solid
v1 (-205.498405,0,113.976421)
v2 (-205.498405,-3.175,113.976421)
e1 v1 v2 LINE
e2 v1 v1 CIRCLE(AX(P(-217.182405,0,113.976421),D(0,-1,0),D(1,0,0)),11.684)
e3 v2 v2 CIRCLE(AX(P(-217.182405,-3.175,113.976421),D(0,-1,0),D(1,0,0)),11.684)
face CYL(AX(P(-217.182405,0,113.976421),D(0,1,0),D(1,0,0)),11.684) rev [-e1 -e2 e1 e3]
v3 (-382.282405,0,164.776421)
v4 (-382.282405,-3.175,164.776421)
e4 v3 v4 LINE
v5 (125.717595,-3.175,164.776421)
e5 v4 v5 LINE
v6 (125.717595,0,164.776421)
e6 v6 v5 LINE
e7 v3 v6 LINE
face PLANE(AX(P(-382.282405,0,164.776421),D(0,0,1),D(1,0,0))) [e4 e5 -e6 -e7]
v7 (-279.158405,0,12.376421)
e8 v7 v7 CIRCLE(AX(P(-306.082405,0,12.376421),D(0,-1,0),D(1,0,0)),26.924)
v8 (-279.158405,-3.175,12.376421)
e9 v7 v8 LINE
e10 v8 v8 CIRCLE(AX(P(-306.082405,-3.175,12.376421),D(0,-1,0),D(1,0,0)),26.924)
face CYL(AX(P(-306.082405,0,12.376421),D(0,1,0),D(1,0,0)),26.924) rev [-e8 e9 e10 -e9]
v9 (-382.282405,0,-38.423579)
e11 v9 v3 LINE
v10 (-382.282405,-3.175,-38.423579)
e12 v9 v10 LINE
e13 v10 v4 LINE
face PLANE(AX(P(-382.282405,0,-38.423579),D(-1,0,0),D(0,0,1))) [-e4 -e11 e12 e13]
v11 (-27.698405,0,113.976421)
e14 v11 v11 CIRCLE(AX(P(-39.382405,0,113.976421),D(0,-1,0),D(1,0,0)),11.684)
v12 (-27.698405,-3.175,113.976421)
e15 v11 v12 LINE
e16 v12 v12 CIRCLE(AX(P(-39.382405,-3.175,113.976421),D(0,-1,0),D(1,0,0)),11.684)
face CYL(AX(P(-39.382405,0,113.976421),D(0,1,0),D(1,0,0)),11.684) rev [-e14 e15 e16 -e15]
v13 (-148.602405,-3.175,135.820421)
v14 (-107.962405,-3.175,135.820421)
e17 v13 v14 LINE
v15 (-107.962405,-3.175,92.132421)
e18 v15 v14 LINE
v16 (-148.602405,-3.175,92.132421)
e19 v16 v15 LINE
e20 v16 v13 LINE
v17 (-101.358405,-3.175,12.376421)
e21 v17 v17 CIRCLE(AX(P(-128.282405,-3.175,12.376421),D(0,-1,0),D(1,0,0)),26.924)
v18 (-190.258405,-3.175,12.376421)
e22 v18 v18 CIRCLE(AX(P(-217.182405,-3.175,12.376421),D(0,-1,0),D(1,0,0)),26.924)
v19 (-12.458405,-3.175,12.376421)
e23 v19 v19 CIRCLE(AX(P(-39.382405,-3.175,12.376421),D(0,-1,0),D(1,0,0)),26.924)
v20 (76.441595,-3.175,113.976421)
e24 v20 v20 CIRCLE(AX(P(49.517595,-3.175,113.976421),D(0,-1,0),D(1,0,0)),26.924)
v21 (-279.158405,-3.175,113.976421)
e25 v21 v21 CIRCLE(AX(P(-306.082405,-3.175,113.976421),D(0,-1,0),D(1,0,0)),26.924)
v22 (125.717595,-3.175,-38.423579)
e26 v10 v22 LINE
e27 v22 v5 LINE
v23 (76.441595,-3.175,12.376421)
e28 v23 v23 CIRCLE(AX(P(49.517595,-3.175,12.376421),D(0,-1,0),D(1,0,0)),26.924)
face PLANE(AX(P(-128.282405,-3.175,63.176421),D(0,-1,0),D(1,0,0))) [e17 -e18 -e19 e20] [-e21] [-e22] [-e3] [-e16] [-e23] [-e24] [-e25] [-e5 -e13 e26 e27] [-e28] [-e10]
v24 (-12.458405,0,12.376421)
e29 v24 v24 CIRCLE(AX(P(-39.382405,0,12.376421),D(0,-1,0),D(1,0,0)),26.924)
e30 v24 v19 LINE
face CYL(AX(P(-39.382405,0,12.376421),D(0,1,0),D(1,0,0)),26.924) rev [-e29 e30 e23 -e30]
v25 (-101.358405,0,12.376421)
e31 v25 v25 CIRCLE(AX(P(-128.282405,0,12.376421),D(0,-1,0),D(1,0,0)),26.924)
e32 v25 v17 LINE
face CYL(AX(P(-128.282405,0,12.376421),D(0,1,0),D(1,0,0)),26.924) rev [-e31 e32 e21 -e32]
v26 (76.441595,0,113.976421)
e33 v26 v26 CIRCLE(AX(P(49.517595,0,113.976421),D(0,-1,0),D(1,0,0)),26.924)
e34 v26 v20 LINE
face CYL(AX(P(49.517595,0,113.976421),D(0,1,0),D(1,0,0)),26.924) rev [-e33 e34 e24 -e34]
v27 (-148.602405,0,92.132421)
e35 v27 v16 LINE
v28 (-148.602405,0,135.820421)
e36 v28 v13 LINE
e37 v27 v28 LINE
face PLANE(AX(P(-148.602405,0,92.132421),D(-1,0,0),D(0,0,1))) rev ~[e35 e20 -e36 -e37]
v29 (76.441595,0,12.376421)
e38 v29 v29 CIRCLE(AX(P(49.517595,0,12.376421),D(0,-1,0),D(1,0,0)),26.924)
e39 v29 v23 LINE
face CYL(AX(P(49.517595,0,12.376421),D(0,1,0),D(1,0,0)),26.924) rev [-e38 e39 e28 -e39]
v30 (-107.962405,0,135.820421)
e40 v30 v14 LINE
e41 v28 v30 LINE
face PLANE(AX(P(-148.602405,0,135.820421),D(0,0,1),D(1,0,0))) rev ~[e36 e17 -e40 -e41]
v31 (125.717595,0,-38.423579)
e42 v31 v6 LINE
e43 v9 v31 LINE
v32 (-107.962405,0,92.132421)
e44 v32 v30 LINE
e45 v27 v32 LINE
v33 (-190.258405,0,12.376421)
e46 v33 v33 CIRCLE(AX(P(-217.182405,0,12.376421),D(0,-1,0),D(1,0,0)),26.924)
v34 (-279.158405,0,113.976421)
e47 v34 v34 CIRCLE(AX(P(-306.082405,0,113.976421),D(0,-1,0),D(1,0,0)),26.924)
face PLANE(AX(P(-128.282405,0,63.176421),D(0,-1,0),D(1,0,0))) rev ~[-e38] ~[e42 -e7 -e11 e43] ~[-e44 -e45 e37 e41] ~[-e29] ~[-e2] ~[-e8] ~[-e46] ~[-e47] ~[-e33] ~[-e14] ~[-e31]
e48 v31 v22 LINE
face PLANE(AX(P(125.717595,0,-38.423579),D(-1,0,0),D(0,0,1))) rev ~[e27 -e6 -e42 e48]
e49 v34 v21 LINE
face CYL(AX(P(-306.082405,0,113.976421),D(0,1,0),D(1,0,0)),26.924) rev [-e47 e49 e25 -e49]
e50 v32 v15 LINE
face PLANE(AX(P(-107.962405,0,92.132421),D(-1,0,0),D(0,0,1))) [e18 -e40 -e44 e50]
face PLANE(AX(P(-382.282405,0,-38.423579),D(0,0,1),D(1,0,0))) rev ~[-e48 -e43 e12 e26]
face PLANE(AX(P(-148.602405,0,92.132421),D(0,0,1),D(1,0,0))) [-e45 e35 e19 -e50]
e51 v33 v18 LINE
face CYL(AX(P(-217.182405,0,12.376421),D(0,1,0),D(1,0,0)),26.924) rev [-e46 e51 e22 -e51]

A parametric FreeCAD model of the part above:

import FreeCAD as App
import Part
import Sketcher
Q = App.Units.Quantity


def add_polygon(sketch, points):
    """Adds a closed chain of lines whose ends are joined by coincident constraints."""
    first, n = sketch.GeometryCount, len(points)
    for a, b in zip(points, points[1:] + points[:1]):
        sketch.addGeometry(Part.LineSegment(App.Vector(*a, 0), App.Vector(*b, 0)), False)
    for i in range(n):
        sketch.addConstraint(Sketcher.Constraint("Coincident", first + i, 2, first + (i + 1) % n, 1))

doc = App.newDocument("Part")
params = doc.addObject("Spreadsheet::Sheet", "Params")
for row, (alias, value) in enumerate([
    ("sketch1_diameter", "2.12 in"),
    ("sketch1_diameter2", "0.92 in"),
    ("sketch1_width", "20 in"),
    ("sketch1_height", "8 in"),
    ("sketch1_width2", "1.6 in"),
    ("pad1_length", "0.125 in"),
], start=1):
    params.set(f"A{row}", alias)
    params.set(f"B{row}", "=" + value)
    params.setAlias(f"B{row}", alias)

body = doc.addObject("PartDesign::Body", "Body")

sketch1 = body.newObject("Sketcher::SketchObject", "Sketch")
sketch1.AttachmentSupport = (doc.getObject("XZ_Plane"), [""])
sketch1.MapMode = "FlatFace"
add_polygon(sketch1, [(-382.282405, 164.776421), (-382.282405, -38.423579), (125.717595, -38.423579), (125.717595, 164.776421)])
sketch1.addGeometry(Part.Circle(App.Vector(-306.082405, 12.376421, 0), App.Vector(0, 0, 1), 26.924), False)
sketch1.addGeometry(Part.Circle(App.Vector(-217.182405, 12.376421, 0), App.Vector(0, 0, 1), 26.924), False)
sketch1.addGeometry(Part.Circle(App.Vector(-128.282405, 12.376421, 0), App.Vector(0, 0, 1), 26.924), False)
sketch1.addGeometry(Part.Circle(App.Vector(-39.382405, 12.376421, 0), App.Vector(0, 0, 1), 26.924), False)
sketch1.addGeometry(Part.Circle(App.Vector(49.517595, 12.376421, 0), App.Vector(0, 0, 1), 26.924), False)
sketch1.addGeometry(Part.Circle(App.Vector(-306.082405, 113.976421, 0), App.Vector(0, 0, 1), 26.924), False)
sketch1.addGeometry(Part.Circle(App.Vector(-217.182405, 113.976421, 0), App.Vector(0, 0, 1), 11.684), False)
add_polygon(sketch1, [(-107.962405, 92.132421), (-148.602405, 92.132421), (-148.602405, 135.820421), (-107.962405, 135.820421)])
sketch1.addGeometry(Part.Circle(App.Vector(-39.382405, 113.976421, 0), App.Vector(0, 0, 1), 11.684), False)
sketch1.addGeometry(Part.Circle(App.Vector(49.517595, 113.976421, 0), App.Vector(0, 0, 1), 26.924), False)
sketch1.addConstraint([
    Sketcher.Constraint("Vertical", 0),
    Sketcher.Constraint("Horizontal", 1),
    Sketcher.Constraint("Vertical", 2),
    Sketcher.Constraint("Horizontal", 3),
    Sketcher.Constraint("Horizontal", 11),
    Sketcher.Constraint("Vertical", 12),
    Sketcher.Constraint("Horizontal", 13),
    Sketcher.Constraint("Vertical", 14),
    Sketcher.Constraint("Equal", 4, 5),
    Sketcher.Constraint("Equal", 5, 6),
    Sketcher.Constraint("Equal", 6, 7),
    Sketcher.Constraint("Equal", 7, 8),
    Sketcher.Constraint("Equal", 8, 9),
    Sketcher.Constraint("Equal", 10, 15),
    Sketcher.Constraint("Equal", 9, 16),
    Sketcher.Constraint("Horizontal", 4, 3, 5, 3),
    Sketcher.Constraint("Horizontal", 5, 3, 6, 3),
    Sketcher.Constraint("Horizontal", 6, 3, 7, 3),
    Sketcher.Constraint("Horizontal", 7, 3, 8, 3),
    Sketcher.Constraint("Horizontal", 9, 3, 10, 3),
    Sketcher.Constraint("Horizontal", 10, 3, 15, 3),
    Sketcher.Constraint("Horizontal", 15, 3, 16, 3),
    Sketcher.Constraint("Vertical", 4, 3, 9, 3),
    Sketcher.Constraint("Vertical", 5, 3, 10, 3),
    Sketcher.Constraint("Vertical", 7, 3, 15, 3),
    Sketcher.Constraint("Vertical", 8, 3, 16, 3),
    Sketcher.Constraint("Diameter", 4, Q("2.12 in")),
    Sketcher.Constraint("Diameter", 10, Q("0.92 in")),
    Sketcher.Constraint("DistanceX", 1, 1, 1, 2, Q("20 in")),
    Sketcher.Constraint("DistanceY", 0, 2, 0, 1, Q("8 in")),
    Sketcher.Constraint("DistanceX", 11, 2, 11, 1, Q("1.6 in")),
    Sketcher.Constraint("DistanceX", 4, 3, 6, 3, Q("7 in")),
    Sketcher.Constraint("DistanceX", 5, 3, 7, 3, Q("7 in")),
    Sketcher.Constraint("DistanceX", 6, 3, 8, 3, Q("7 in")),
    Sketcher.Constraint("DistanceY", 4, 3, 9, 3, Q("4 in")),
    Sketcher.Constraint("DistanceX", 0, 2, 4, 3, Q("3 in")),
    Sketcher.Constraint("DistanceY", 0, 2, 4, 3, Q("2 in")),
    Sketcher.Constraint("DistanceY", 12, 1, 12, 2, Q("1.72 in")),
    Sketcher.Constraint("DistanceX", 4, 3, 5, 3, Q("3.5 in")),
    Sketcher.Constraint("DistanceX", 10, 3, 11, 2, Q("2.7 in")),
    Sketcher.Constraint("DistanceY", 11, 2, 10, 3, Q("0.86 in")),
    Sketcher.Constraint("DistanceY", -1, 1, 4, 3, 12.376421),
    Sketcher.Constraint("DistanceX", 4, 3, -1, 1, 306.082405),
])
sketch1.setExpression("Constraints[34]", "Params.sketch1_diameter")
sketch1.setExpression("Constraints[35]", "Params.sketch1_diameter2")
sketch1.setExpression("Constraints[36]", "Params.sketch1_width")
sketch1.setExpression("Constraints[37]", "Params.sketch1_height")
sketch1.setExpression("Constraints[38]", "Params.sketch1_width2")
pad1 = body.newObject("PartDesign::Pad", "Pad")
pad1.Profile = sketch1
pad1.setExpression("Length", "Params.pad1_length")

doc.recompute()
